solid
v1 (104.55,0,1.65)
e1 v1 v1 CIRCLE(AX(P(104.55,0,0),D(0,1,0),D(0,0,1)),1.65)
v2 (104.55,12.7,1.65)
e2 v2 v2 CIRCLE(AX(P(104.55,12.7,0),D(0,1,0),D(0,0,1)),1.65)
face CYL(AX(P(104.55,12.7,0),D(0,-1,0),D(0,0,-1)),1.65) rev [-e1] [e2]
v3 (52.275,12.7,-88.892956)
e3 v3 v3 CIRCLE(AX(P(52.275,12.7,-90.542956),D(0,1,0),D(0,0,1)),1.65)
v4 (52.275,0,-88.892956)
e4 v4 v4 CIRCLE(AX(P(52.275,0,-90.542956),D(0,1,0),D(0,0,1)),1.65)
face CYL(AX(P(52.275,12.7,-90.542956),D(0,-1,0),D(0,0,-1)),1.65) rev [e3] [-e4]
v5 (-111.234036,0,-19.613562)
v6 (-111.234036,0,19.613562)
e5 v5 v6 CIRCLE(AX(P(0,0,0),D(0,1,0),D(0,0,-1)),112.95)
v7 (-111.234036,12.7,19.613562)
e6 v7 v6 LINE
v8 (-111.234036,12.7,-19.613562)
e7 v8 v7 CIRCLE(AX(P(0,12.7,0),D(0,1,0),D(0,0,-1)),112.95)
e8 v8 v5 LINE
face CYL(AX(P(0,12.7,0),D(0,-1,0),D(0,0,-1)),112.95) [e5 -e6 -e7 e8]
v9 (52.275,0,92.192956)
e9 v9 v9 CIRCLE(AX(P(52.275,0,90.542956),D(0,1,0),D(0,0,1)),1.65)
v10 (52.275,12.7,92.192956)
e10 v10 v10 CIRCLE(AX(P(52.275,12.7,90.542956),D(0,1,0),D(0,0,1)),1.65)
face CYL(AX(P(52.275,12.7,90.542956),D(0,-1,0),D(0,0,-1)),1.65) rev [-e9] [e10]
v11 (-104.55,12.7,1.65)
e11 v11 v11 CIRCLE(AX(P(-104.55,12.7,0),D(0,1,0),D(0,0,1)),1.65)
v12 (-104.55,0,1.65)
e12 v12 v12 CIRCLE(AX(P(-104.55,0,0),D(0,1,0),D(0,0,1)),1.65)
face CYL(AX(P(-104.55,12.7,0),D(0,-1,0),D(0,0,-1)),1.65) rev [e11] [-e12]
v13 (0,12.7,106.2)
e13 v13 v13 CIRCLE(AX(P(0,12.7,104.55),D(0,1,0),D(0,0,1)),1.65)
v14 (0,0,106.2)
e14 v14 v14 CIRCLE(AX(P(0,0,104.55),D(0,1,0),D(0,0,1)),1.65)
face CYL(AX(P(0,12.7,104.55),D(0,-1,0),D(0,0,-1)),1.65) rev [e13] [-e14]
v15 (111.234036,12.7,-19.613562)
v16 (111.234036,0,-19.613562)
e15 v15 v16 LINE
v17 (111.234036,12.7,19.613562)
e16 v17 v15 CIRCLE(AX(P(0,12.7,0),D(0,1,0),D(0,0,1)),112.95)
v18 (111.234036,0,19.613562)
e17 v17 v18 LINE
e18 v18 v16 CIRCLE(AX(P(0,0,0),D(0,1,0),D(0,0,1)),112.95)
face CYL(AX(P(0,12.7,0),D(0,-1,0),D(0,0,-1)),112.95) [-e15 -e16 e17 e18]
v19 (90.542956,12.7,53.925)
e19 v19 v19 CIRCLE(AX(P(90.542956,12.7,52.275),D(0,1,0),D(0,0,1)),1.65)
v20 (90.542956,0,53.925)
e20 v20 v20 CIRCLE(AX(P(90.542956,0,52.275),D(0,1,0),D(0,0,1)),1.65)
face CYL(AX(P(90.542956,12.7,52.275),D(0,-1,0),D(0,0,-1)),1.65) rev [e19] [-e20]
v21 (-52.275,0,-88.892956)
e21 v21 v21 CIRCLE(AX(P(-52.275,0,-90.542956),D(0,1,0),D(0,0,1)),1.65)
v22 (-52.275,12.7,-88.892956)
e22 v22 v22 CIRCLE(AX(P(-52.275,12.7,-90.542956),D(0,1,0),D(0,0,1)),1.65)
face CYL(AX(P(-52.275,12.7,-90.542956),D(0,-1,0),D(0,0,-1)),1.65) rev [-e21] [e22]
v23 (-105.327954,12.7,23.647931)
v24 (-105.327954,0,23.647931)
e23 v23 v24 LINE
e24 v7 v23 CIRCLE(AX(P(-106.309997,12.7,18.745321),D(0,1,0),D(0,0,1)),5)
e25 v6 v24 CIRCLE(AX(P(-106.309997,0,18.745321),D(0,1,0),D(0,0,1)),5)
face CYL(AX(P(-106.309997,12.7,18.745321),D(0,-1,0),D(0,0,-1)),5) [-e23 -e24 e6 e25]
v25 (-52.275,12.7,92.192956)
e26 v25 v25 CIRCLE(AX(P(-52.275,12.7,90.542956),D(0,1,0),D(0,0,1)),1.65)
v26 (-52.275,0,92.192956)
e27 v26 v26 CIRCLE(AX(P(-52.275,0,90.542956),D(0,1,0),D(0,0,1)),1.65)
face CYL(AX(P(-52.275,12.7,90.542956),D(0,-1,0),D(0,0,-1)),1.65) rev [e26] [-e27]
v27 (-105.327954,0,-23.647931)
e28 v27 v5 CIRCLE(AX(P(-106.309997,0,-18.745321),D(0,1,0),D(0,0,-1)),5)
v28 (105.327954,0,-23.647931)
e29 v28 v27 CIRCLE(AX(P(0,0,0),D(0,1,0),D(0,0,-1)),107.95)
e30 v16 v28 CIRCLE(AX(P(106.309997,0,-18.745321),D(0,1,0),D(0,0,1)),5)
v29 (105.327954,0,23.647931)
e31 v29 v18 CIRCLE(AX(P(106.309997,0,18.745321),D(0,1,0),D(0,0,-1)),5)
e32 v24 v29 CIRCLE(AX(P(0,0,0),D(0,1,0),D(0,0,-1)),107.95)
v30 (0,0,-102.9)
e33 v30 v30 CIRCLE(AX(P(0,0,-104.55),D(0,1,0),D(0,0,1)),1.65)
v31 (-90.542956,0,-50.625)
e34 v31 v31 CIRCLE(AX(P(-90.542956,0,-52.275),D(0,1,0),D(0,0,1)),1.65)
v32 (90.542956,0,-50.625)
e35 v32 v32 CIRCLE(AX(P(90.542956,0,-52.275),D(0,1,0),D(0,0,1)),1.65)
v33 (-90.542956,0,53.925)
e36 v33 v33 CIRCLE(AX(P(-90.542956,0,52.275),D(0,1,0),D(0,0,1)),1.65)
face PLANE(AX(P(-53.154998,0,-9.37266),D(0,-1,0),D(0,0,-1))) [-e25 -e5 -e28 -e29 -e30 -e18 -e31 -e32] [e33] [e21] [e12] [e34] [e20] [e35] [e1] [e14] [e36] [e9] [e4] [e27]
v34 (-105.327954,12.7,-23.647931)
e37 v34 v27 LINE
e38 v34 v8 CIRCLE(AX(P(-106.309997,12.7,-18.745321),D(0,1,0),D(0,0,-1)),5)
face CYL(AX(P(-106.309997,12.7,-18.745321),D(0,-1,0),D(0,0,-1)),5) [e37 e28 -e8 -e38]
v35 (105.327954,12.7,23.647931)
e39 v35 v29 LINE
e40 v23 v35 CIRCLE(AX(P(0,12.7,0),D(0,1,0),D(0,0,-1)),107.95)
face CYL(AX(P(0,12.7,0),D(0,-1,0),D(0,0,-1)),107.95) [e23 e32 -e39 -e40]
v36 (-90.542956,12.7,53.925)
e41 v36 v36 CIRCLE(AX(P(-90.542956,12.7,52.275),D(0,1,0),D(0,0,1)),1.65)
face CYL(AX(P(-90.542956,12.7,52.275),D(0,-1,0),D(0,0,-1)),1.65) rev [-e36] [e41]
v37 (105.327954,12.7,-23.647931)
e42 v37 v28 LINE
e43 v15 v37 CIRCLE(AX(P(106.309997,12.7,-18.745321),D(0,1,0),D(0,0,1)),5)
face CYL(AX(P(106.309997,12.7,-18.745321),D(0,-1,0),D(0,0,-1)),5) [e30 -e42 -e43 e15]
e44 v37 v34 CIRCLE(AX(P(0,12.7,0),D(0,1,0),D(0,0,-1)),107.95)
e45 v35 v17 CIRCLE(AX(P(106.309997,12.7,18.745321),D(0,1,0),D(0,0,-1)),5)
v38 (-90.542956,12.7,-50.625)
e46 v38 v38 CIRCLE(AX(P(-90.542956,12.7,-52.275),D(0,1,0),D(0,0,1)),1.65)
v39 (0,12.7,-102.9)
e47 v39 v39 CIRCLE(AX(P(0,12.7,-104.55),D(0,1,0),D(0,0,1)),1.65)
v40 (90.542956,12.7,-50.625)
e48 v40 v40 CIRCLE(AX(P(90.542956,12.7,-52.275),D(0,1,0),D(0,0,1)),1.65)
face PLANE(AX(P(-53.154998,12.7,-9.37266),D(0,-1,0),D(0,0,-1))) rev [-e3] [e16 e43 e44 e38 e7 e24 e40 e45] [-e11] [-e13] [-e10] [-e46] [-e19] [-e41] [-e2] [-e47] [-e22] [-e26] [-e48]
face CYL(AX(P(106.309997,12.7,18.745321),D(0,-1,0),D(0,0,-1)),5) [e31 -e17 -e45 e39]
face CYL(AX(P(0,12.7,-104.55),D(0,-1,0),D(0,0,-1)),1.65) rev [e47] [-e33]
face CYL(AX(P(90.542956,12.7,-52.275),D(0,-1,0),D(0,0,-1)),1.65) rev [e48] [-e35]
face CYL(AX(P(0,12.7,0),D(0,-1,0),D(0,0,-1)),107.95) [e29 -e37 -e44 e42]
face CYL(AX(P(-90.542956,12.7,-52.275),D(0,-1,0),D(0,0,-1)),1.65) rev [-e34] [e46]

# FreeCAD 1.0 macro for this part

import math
import FreeCAD as App
import Part
import Sketcher
Q = App.Units.Quantity

doc = App.newDocument("Part")
body = doc.addObject("PartDesign::Body", "Body")

sketch1 = body.newObject("Sketcher::SketchObject", "Sketch")
sketch1.AttachmentSupport = (doc.getObject("XZ_Plane"), [""])
sketch1.MapMode = "FlatFace"
sketch1.addGeometry([
    Part.ArcOfCircle(Part.Circle(App.Vector(0, 0, 0), App.Vector(0, 0, 1), 113), math.radians(170), math.radians(190)),
    Part.ArcOfCircle(Part.Circle(App.Vector(-106.3, 18.7, 0), App.Vector(0, 0, 1), 5), math.radians(79), math.radians(170)),
    Part.ArcOfCircle(Part.Circle(App.Vector(0, 0, 0), App.Vector(0, 0, 1), 108), math.radians(13), math.radians(167)),
    Part.ArcOfCircle(Part.Circle(App.Vector(106.3, 18.7, 0), App.Vector(0, 0, 1), 5), math.radians(10), math.radians(101)),
    Part.ArcOfCircle(Part.Circle(App.Vector(0, 0, 0), App.Vector(0, 0, 1), 113), math.radians(-10), math.radians(10)),
    Part.ArcOfCircle(Part.Circle(App.Vector(106.3, -18.7, 0), App.Vector(0, 0, 1), 5), math.radians(-101), math.radians(-10)),
    Part.ArcOfCircle(Part.Circle(App.Vector(0, 0, 0), App.Vector(0, 0, 1), 108), math.radians(-167), math.radians(-13)),
    Part.ArcOfCircle(Part.Circle(App.Vector(-106.3, -18.7, 0), App.Vector(0, 0, 1), 5), math.radians(-170), math.radians(-79)),
    Part.Circle(App.Vector(52.3, 90.5, 0), App.Vector(0, 0, 1), 1.6),
    Part.Circle(App.Vector(90.5, 52.3, 0), App.Vector(0, 0, 1), 1.6),
    Part.Circle(App.Vector(0, 104.5, 0), App.Vector(0, 0, 1), 1.6),
    Part.Circle(App.Vector(-52.3, 90.5, 0), App.Vector(0, 0, 1), 1.6),
    Part.Circle(App.Vector(-90.5, 52.3, 0), App.Vector(0, 0, 1), 1.6),
    Part.Circle(App.Vector(104.5, 0, 0), App.Vector(0, 0, 1), 1.6),
    Part.Circle(App.Vector(90.5, -52.3, 0), App.Vector(0, 0, 1), 1.6),
    Part.Circle(App.Vector(52.3, -90.5, 0), App.Vector(0, 0, 1), 1.6),
    Part.Circle(App.Vector(-104.5, 0, 0), App.Vector(0, 0, 1), 1.6),
    Part.Circle(App.Vector(-90.5, -52.3, 0), App.Vector(0, 0, 1), 1.6),
    Part.Circle(App.Vector(0, -104.5, 0), App.Vector(0, 0, 1), 1.6),
    Part.Circle(App.Vector(-52.3, -90.5, 0), App.Vector(0, 0, 1), 1.6),
], False)
sketch1.addConstraint([
    Sketcher.Constraint("Tangent", 0, 1, 1, 2),
    Sketcher.Constraint("Coincident", 1, 1, 2, 2),
    Sketcher.Constraint("Coincident", 2, 1, 3, 2),
    Sketcher.Constraint("Tangent", 3, 1, 4, 2),
    Sketcher.Constraint("Tangent", 4, 1, 5, 2),
    Sketcher.Constraint("Coincident", 5, 1, 6, 2),
    Sketcher.Constraint("Coincident", 6, 1, 7, 2),
    Sketcher.Constraint("Tangent", 7, 1, 0, 2),
    Sketcher.Constraint("Coincident", 0, 3, -1, 1),
    Sketcher.Constraint("Coincident", 2, 3, -1, 1),
    Sketcher.Constraint("Coincident", 4, 3, -1, 1),
    Sketcher.Constraint("Coincident", 6, 3, -1, 1),
    Sketcher.Constraint("Equal", 1, 3),
    Sketcher.Constraint("Equal", 0, 4),
    Sketcher.Constraint("Equal", 3, 5),
    Sketcher.Constraint("Equal", 2, 6),
    Sketcher.Constraint("Equal", 5, 7),
    Sketcher.Constraint("Equal", 8, 9),
    Sketcher.Constraint("Equal", 9, 10),
    Sketcher.Constraint("Equal", 10, 11),
    Sketcher.Constraint("Equal", 11, 12),
    Sketcher.Constraint("Equal", 12, 13),
    Sketcher.Constraint("Equal", 13, 14),
    Sketcher.Constraint("Equal", 14, 15),
    Sketcher.Constraint("Equal", 15, 16),
    Sketcher.Constraint("Equal", 16, 17),
    Sketcher.Constraint("Equal", 17, 18),
    Sketcher.Constraint("Equal", 18, 19),
    Sketcher.Constraint("Symmetric", 12, 3, 14, 3, -1, 1),
    Sketcher.Constraint("Symmetric", 11, 3, 15, 3, -1, 1),
    Sketcher.Constraint("Symmetric", 13, 3, 16, 3, -1, 1),
    Sketcher.Constraint("Symmetric", 9, 3, 17, 3, -1, 1),
    Sketcher.Constraint("Symmetric", 10, 3, 18, 3, -1, 1),
    Sketcher.Constraint("Symmetric", 8, 3, 19, 3, -1, 1),
    Sketcher.Constraint("Symmetric", 8, 3, 11, 3, -2),
    Sketcher.Constraint("Symmetric", 9, 3, 12, 3, -2),
    Sketcher.Constraint("PointOnObject", 10, 3, -2),
    Sketcher.Constraint("PointOnObject", 13, 3, -1),
    Sketcher.Constraint("Horizontal", 1, 3, 3, 3),
    Sketcher.Constraint("Horizontal", 5, 3, 7, 3),
    Sketcher.Constraint("Vertical", 3, 3, 5, 3),
    Sketcher.Constraint("Radius", 1, Q("5 mm")),
    Sketcher.Constraint("Diameter", 8, Q("3.3 mm")),
    Sketcher.Constraint("Radius", 0, Q("112.95 mm")),
    Sketcher.Constraint("Radius", 2, Q("107.95 mm")),
    Sketcher.Constraint("DistanceY", -1, 1, 10, 3, Q("104.55 mm")),
    Sketcher.Constraint("DistanceX", -1, 1, 13, 3, Q("104.55 mm")),
    Sketcher.Constraint("DistanceX", 11, 3, 8, 3, Q("104.55 mm")),
    Sketcher.Constraint("DistanceY", 14, 3, 9, 3, Q("104.55 mm")),
    Sketcher.Constraint("DistanceY", -1, 1, 1, 3, Q("18.745321 mm")),
    Sketcher.Constraint("DistanceX", 9, 3, 3, 3, Q("15.767041 mm")),
    Sketcher.Constraint("DistanceY", -1, 1, 8, 3, Q("90.542956 mm")),
])
pad1 = body.newObject("PartDesign::Pad", "Pad")
pad1.Profile = sketch1
pad1.Length = 12.7
pad1.Reversed = True

doc.recompute()
